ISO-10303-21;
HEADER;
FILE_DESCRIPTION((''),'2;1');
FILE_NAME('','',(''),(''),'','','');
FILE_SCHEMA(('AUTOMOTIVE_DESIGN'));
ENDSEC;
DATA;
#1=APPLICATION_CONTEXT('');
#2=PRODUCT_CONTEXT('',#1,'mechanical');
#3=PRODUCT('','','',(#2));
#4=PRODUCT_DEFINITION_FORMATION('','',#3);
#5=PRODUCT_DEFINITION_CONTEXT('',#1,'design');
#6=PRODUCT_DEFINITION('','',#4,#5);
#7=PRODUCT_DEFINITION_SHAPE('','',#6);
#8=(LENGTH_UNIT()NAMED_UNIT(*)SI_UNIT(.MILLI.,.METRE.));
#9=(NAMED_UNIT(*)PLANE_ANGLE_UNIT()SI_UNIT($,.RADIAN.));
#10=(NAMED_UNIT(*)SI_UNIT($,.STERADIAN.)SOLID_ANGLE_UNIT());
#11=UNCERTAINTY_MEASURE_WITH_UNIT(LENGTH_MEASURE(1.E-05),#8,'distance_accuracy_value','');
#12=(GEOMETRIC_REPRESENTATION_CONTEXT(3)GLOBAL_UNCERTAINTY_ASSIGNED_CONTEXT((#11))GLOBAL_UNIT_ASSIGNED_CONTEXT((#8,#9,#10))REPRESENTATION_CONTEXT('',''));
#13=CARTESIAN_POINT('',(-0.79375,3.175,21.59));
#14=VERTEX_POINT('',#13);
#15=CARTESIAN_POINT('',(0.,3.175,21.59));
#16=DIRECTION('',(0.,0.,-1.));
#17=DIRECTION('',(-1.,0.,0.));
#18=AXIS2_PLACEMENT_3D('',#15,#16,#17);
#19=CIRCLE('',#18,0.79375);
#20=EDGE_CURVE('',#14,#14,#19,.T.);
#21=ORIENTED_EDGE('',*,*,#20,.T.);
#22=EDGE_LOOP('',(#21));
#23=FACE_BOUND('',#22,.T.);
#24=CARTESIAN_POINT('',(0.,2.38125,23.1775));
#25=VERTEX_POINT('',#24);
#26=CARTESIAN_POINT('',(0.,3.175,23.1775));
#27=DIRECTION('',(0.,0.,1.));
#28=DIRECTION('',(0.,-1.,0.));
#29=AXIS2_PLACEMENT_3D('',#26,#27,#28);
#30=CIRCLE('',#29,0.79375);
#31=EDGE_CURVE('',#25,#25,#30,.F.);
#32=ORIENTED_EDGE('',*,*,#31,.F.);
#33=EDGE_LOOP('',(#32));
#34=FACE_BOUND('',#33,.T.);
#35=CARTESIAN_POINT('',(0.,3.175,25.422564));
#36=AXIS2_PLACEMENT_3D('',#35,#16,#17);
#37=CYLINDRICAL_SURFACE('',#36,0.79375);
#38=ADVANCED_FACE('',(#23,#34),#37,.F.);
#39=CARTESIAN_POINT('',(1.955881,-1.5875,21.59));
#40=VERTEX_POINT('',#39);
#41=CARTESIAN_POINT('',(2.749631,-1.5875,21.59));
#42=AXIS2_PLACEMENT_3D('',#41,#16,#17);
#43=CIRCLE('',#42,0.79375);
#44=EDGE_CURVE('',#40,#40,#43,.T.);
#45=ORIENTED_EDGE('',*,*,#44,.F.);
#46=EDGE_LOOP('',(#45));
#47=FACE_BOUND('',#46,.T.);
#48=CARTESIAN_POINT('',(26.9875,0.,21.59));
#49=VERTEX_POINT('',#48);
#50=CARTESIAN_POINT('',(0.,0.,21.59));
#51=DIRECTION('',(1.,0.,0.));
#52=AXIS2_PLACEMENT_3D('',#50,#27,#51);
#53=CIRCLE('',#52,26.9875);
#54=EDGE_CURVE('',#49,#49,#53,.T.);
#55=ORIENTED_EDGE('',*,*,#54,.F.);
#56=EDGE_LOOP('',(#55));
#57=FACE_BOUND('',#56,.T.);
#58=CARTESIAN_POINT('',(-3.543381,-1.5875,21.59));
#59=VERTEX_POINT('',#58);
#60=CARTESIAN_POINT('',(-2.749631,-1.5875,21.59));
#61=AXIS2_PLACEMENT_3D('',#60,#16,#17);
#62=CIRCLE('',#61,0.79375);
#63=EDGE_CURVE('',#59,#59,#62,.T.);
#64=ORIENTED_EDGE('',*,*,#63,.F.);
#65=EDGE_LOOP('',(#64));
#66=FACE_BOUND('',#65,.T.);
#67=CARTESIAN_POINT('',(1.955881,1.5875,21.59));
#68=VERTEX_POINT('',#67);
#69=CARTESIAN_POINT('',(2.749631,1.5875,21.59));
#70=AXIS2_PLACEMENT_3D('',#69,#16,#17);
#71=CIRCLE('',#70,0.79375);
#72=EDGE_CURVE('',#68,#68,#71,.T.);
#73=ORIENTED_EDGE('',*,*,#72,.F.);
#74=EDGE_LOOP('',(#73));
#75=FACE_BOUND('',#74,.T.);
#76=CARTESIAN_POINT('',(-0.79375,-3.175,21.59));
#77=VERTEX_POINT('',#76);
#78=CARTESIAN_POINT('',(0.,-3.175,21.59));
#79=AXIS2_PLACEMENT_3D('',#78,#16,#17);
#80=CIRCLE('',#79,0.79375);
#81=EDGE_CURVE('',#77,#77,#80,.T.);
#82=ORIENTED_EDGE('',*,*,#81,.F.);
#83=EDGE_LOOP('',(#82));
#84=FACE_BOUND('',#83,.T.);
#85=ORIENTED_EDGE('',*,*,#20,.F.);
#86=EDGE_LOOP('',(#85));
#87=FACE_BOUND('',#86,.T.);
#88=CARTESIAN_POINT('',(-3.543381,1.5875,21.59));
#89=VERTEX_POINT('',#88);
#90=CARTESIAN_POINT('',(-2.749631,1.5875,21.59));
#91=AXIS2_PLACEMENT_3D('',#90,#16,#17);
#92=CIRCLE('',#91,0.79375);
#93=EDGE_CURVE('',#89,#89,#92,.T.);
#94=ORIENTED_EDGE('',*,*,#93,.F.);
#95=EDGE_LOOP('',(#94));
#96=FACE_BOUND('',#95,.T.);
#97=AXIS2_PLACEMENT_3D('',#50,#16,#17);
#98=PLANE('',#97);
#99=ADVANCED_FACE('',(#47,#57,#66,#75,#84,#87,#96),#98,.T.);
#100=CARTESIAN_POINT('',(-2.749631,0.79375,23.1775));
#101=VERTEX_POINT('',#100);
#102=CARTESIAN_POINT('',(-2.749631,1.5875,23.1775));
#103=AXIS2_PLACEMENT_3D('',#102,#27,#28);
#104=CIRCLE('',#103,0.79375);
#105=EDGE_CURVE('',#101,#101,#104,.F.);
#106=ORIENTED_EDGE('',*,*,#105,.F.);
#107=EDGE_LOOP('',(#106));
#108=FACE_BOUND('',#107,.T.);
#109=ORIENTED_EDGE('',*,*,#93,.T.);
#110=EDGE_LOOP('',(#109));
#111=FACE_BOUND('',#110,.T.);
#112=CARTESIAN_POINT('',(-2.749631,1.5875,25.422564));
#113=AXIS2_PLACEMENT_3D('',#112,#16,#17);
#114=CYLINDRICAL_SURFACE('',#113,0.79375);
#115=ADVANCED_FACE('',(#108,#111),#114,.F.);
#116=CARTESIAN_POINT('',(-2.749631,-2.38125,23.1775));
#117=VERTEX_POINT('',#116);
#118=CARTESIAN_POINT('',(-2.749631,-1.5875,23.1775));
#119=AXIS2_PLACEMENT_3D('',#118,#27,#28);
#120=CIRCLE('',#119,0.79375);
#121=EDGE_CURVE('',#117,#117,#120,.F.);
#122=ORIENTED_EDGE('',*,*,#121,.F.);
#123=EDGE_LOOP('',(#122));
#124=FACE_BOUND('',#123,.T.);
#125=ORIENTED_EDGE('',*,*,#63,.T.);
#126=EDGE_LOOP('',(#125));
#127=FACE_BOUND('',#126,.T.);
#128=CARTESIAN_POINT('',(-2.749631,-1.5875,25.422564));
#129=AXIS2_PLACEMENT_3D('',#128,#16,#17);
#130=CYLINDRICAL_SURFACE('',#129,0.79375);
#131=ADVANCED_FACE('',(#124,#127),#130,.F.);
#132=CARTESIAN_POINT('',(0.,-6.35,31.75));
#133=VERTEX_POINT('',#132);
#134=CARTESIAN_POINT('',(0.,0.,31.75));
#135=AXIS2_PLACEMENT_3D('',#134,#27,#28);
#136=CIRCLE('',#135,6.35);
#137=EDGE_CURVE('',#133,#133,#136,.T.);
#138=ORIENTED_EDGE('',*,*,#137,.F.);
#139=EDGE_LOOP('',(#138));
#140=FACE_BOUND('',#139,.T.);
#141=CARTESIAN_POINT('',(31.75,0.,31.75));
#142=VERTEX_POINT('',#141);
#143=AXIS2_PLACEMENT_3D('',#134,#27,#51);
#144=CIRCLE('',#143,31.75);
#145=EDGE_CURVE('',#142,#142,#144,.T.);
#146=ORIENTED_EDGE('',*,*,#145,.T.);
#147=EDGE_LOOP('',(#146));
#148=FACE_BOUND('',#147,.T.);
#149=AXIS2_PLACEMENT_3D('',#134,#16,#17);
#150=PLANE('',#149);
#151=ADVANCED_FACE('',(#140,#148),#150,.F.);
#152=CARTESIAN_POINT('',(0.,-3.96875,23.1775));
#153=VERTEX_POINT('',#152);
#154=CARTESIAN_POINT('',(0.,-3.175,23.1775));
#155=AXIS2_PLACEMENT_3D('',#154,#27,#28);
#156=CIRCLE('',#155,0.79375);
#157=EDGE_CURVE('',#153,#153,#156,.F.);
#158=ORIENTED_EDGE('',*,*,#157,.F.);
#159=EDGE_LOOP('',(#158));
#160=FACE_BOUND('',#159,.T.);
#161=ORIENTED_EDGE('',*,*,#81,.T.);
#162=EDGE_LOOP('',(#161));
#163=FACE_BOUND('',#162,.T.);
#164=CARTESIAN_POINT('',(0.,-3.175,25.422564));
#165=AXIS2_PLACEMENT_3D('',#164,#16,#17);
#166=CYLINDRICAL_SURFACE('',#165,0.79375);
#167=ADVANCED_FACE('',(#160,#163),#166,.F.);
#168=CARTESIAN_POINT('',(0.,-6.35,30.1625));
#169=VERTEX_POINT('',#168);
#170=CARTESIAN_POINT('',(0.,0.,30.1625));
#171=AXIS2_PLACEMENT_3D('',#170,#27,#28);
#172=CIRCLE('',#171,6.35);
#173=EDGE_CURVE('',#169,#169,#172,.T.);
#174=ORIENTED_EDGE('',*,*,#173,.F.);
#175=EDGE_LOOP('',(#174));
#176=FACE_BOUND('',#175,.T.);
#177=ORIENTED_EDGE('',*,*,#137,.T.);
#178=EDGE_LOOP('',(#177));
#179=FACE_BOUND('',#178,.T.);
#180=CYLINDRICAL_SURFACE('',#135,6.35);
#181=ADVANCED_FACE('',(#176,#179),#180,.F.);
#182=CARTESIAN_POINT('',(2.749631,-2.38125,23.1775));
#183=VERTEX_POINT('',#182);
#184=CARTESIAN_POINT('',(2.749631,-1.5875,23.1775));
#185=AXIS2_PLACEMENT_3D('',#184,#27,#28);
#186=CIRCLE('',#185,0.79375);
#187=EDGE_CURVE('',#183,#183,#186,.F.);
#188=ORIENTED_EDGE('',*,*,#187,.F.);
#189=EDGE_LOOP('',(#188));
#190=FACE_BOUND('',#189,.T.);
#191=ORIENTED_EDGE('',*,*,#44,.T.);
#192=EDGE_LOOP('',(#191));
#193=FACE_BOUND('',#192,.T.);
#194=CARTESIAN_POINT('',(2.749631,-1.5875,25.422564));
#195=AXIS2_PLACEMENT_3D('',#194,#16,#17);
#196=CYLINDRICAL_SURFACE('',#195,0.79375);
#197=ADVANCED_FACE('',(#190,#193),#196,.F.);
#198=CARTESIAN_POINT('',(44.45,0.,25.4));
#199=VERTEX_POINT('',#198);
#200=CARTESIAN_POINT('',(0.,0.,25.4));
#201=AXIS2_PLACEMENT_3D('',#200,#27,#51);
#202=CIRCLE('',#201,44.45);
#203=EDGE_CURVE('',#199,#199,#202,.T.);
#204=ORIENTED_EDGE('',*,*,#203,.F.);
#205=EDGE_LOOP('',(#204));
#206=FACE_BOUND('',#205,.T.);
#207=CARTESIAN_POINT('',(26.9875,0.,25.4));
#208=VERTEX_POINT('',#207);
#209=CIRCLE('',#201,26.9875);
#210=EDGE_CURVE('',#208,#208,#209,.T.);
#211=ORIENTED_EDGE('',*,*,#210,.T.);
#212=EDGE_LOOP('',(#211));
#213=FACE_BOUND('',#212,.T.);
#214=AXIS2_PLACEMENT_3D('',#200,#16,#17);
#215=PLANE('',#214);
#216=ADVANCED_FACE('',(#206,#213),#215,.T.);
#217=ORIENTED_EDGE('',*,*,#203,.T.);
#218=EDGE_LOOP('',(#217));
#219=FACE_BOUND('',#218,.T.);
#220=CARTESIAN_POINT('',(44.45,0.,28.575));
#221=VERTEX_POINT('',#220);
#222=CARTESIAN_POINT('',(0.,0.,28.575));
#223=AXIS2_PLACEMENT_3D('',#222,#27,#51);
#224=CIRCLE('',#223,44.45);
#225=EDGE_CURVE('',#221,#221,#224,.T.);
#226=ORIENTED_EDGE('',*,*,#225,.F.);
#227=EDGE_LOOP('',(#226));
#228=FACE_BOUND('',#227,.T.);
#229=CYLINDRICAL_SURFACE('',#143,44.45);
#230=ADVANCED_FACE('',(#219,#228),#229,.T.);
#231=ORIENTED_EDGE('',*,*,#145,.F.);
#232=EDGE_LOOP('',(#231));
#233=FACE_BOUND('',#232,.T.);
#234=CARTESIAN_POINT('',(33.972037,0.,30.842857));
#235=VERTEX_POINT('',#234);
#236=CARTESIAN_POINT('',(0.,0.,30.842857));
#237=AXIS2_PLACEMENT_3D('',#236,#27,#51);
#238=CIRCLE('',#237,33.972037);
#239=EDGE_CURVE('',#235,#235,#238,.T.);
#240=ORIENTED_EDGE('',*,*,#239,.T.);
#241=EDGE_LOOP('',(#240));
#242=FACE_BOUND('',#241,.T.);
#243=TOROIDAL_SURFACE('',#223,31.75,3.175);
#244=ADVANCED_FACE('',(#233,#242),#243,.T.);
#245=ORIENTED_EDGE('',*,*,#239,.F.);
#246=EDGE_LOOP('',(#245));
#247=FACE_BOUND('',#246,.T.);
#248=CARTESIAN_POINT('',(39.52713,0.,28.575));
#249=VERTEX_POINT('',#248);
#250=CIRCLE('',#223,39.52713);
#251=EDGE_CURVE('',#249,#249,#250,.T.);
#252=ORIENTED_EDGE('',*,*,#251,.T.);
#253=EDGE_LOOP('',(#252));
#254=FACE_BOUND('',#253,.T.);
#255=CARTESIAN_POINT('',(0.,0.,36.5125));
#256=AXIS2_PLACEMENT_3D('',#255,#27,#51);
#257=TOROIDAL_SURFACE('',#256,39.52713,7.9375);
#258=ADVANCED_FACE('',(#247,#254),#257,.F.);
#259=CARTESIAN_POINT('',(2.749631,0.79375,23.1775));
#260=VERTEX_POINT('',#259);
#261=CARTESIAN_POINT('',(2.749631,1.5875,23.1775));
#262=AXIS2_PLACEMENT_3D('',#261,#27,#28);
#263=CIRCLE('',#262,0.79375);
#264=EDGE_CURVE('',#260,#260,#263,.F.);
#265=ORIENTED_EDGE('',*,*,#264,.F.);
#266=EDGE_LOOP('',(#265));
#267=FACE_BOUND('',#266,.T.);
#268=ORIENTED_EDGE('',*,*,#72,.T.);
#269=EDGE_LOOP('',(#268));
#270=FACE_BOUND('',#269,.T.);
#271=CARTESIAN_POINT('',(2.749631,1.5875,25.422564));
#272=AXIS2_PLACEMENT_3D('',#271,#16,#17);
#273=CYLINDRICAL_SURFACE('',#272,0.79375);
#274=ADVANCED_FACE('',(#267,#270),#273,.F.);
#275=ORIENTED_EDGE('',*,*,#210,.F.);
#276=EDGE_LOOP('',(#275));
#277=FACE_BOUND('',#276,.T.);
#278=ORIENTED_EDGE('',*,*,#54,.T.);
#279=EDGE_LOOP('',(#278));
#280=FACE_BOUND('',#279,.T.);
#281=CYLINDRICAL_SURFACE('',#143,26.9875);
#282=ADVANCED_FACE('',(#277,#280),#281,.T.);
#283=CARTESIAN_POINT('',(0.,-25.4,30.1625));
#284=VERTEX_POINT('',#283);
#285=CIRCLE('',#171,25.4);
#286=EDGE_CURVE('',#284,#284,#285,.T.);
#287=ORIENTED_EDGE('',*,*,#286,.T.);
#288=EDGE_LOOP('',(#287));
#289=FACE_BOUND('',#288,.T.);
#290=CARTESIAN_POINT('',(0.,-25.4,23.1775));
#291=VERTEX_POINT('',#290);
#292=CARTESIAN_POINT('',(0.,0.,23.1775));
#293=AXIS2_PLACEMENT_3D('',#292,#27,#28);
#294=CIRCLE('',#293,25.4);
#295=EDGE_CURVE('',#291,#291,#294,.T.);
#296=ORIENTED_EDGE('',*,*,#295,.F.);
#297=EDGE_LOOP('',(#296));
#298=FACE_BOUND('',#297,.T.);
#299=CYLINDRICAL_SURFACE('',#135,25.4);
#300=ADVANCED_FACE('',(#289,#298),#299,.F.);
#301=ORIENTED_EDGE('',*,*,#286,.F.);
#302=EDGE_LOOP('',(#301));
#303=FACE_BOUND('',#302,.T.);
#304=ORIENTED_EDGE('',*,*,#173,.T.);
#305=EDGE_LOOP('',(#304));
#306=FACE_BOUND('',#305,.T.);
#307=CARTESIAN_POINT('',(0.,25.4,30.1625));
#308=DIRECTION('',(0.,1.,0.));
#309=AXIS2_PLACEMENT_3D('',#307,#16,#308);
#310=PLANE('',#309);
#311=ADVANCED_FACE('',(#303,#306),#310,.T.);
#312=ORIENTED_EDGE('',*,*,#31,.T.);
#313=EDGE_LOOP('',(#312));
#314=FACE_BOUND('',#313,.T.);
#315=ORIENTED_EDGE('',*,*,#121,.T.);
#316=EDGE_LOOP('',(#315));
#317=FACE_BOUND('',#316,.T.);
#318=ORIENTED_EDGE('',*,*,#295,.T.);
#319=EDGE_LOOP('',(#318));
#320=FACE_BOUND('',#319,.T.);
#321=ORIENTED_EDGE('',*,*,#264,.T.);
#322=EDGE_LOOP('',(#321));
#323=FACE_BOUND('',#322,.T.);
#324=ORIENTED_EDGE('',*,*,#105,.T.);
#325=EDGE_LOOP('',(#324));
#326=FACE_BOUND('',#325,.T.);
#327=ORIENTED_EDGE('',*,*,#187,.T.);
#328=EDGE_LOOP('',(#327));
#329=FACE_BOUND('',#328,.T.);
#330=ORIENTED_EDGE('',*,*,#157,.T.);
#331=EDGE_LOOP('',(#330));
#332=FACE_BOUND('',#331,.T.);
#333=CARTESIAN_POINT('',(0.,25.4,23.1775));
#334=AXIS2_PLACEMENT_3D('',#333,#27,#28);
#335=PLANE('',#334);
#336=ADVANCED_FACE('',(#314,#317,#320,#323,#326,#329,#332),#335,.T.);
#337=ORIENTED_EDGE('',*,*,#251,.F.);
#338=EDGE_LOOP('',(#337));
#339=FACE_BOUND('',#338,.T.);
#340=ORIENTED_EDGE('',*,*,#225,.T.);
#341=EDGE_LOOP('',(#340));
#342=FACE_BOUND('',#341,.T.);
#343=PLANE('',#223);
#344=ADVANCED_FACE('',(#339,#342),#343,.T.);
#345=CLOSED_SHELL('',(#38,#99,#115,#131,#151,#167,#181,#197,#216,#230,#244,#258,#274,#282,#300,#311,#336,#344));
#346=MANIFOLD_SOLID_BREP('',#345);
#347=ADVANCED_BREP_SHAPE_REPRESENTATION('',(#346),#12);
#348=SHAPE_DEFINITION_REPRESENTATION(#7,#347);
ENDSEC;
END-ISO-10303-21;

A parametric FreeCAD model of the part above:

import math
import FreeCAD as App
import Part
import Sketcher
Q = App.Units.Quantity

doc = App.newDocument("Part")
params = doc.addObject("Spreadsheet::Sheet", "Params")
for row, (alias, value) in enumerate([
    ("sketch1_height", "0.4 in"),
    ("sketch1_radius", "0.3125 in"),
    ("sketch1_radius2", "0.125 in"),
    ("sketch1_width", "1.25 in"),
    ("sketch1_height2", "0.15 in"),
    ("revolution_angle", "360 deg"),
    ("sketch2_width", "1 in"),
    ("sketch2_width2", "0.75 in"),
    ("sketch2_height", "0.275 in"),
    ("sketch2_height2", "0.0625 in"),
    ("groove_angle", "360 deg"),
    ("sketch3_diameter", "0.0625 in"),
    ("pocket1_length", "0.0625 in"),
], start=1):
    params.set(f"A{row}", alias)
    params.set(f"B{row}", "=" + value)
    params.setAlias(f"B{row}", alias)

body = doc.addObject("PartDesign::Body", "Body")

# Sketch on YZ plane
sketch1 = doc.addObject("Sketcher::SketchObject", "Sketch")
body.addObject(sketch1)
sketch1.AttachmentSupport = (doc.YZ_Plane, [""])
sketch1.MapMode = "FlatFace"
sketch1.addGeometry(Part.LineSegment(App.Vector(0, 21.6, 0), App.Vector(27, 21.6, 0)), False)
sketch1.addGeometry(Part.LineSegment(App.Vector(27, 21.6, 0), App.Vector(27, 25.4, 0)), False)
sketch1.addGeometry(Part.LineSegment(App.Vector(27, 25.4, 0), App.Vector(44.5, 25.4, 0)), False)
sketch1.addGeometry(Part.LineSegment(App.Vector(44.5, 25.4, 0), App.Vector(44.5, 28.6, 0)), False)
sketch1.addGeometry(Part.LineSegment(App.Vector(44.5, 28.6, 0), App.Vector(39.5, 28.6, 0)), False)
sketch1.addGeometry(Part.ArcOfCircle(Part.Circle(App.Vector(39.5, 36.5, 0), App.Vector(0, 0, 1), 7.9), math.radians(-134), math.radians(-90)), False)
sketch1.addGeometry(Part.ArcOfCircle(Part.Circle(App.Vector(31.8, 28.6, 0), App.Vector(0, 0, 1), 3.2), math.radians(46), math.radians(90)), False)
sketch1.addGeometry(Part.LineSegment(App.Vector(31.8, 31.8, 0), App.Vector(0, 31.8, 0)), False)
sketch1.addGeometry(Part.LineSegment(App.Vector(0, 31.8, 0), App.Vector(0, 21.6, 0)), False)
sketch1.addConstraint(Sketcher.Constraint("Coincident", 0, 2, 1, 1))
sketch1.addConstraint(Sketcher.Constraint("Coincident", 1, 2, 2, 1))
sketch1.addConstraint(Sketcher.Constraint("Coincident", 2, 2, 3, 1))
sketch1.addConstraint(Sketcher.Constraint("Coincident", 3, 2, 4, 1))
sketch1.addConstraint(Sketcher.Constraint("Tangent", 4, 2, 5, 2))
sketch1.addConstraint(Sketcher.Constraint("Tangent", 5, 1, 6, 1))
sketch1.addConstraint(Sketcher.Constraint("Tangent", 6, 2, 7, 1))
sketch1.addConstraint(Sketcher.Constraint("Coincident", 7, 2, 8, 1))
sketch1.addConstraint(Sketcher.Constraint("Coincident", 8, 2, 0, 1))
sketch1.addConstraint(Sketcher.Constraint("Horizontal", 0))
sketch1.addConstraint(Sketcher.Constraint("Vertical", 1))
sketch1.addConstraint(Sketcher.Constraint("Horizontal", 2))
sketch1.addConstraint(Sketcher.Constraint("Vertical", 3))
sketch1.addConstraint(Sketcher.Constraint("Horizontal", 4))
sketch1.addConstraint(Sketcher.Constraint("Horizontal", 7))
sketch1.addConstraint(Sketcher.Constraint("Vertical", 8))
sketch1.addConstraint(Sketcher.Constraint("PointOnObject", 7, 2, -2))
sketch1.addConstraint(Sketcher.Constraint("Horizontal", 6, 3, 3, 2))
sketch1.addConstraint(Sketcher.Constraint("DistanceY", 8, 2, 8, 1, Q("0.4 in")))
sketch1.addConstraint(Sketcher.Constraint("DistanceY", -1, 1, 1, 2, Q("1 in")))
sketch1.addConstraint(Sketcher.Constraint("Radius", 5, Q("0.3125 in")))
sketch1.addConstraint(Sketcher.Constraint("Radius", 6, Q("0.125 in")))
sketch1.addConstraint(Sketcher.Constraint("DistanceX", 7, 2, 7, 1, Q("1.25 in")))
sketch1.addConstraint(Sketcher.Constraint("DistanceY", 1, 1, 1, 2, Q("0.15 in")))
sketch1.addConstraint(Sketcher.Constraint("DistanceX", 6, 3, 2, 2, Q("0.5 in")))
sketch1.addConstraint(Sketcher.Constraint("DistanceX", 0, 1, 0, 2, Q("1.0625 in")))
sketch1.setExpression("Constraints[18]", "Params.sketch1_height")
sketch1.setExpression("Constraints[20]", "Params.sketch1_radius")
sketch1.setExpression("Constraints[21]", "Params.sketch1_radius2")
sketch1.setExpression("Constraints[22]", "Params.sketch1_width")
sketch1.setExpression("Constraints[23]", "Params.sketch1_height2")
revolution = doc.addObject("PartDesign::Revolution", "Revolution")
body.addObject(revolution)
revolution.Profile = sketch1
revolution.ReferenceAxis = (sketch1, ["V_Axis"])
revolution.setExpression("Angle", "Params.revolution_angle")

# Sketch on YZ plane
sketch2 = doc.addObject("Sketcher::SketchObject", "Sketch001")
body.addObject(sketch2)
sketch2.AttachmentSupport = (doc.YZ_Plane, [""])
sketch2.MapMode = "FlatFace"
sketch2.addGeometry(Part.LineSegment(App.Vector(25.4, 23.2, 0), App.Vector(25.4, 30.2, 0)), False)
sketch2.addGeometry(Part.LineSegment(App.Vector(25.4, 30.2, 0), App.Vector(6.3, 30.2, 0)), False)
sketch2.addGeometry(Part.LineSegment(App.Vector(6.3, 30.2, 0), App.Vector(6.3, 31.8, 0)), False)
sketch2.addGeometry(Part.LineSegment(App.Vector(6.3, 31.8, 0), App.Vector(0, 31.8, 0)), False)
sketch2.addGeometry(Part.LineSegment(App.Vector(0, 31.8, 0), App.Vector(0, 23.2, 0)), False)
sketch2.addGeometry(Part.LineSegment(App.Vector(0, 23.2, 0), App.Vector(25.4, 23.2, 0)), False)
sketch2.addConstraint(Sketcher.Constraint("Coincident", 0, 2, 1, 1))
sketch2.addConstraint(Sketcher.Constraint("Coincident", 1, 2, 2, 1))
sketch2.addConstraint(Sketcher.Constraint("Coincident", 2, 2, 3, 1))
sketch2.addConstraint(Sketcher.Constraint("Coincident", 3, 2, 4, 1))
sketch2.addConstraint(Sketcher.Constraint("Coincident", 4, 2, 5, 1))
sketch2.addConstraint(Sketcher.Constraint("Coincident", 5, 2, 0, 1))
sketch2.addConstraint(Sketcher.Constraint("Vertical", 0))
sketch2.addConstraint(Sketcher.Constraint("Horizontal", 1))
sketch2.addConstraint(Sketcher.Constraint("Vertical", 2))
sketch2.addConstraint(Sketcher.Constraint("Horizontal", 3))
sketch2.addConstraint(Sketcher.Constraint("Vertical", 4))
sketch2.addConstraint(Sketcher.Constraint("Horizontal", 5))
sketch2.addConstraint(Sketcher.Constraint("PointOnObject", 3, 2, -2))
sketch2.addConstraint(Sketcher.Constraint("DistanceX", 5, 1, 5, 2, Q("1 in")))
sketch2.addConstraint(Sketcher.Constraint("DistanceX", 1, 2, 1, 1, Q("0.75 in")))
sketch2.addConstraint(Sketcher.Constraint("DistanceY", 0, 1, 0, 2, Q("0.275 in")))
sketch2.addConstraint(Sketcher.Constraint("DistanceY", 2, 1, 2, 2, Q("0.0625 in")))
sketch2.addConstraint(Sketcher.Constraint("DistanceY", -1, 1, 2, 2, Q("1.25 in")))
sketch2.setExpression("Constraints[13]", "Params.sketch2_width")
sketch2.setExpression("Constraints[14]", "Params.sketch2_width2")
sketch2.setExpression("Constraints[15]", "Params.sketch2_height")
sketch2.setExpression("Constraints[16]", "Params.sketch2_height2")
groove = doc.addObject("PartDesign::Groove", "Groove")
body.addObject(groove)
groove.Profile = sketch2
groove.ReferenceAxis = (sketch2, ["V_Axis"])
groove.setExpression("Angle", "Params.groove_angle")

# Sketch on XY plane
sketch3 = doc.addObject("Sketcher::SketchObject", "Sketch002")
body.addObject(sketch3)
sketch3.AttachmentSupport = (doc.XY_Plane, [""])
sketch3.MapMode = "FlatFace"
sketch3.AttachmentOffset = App.Placement(App.Vector(0, 0, 0.85 * 25.4), App.Rotation())
sketch3.addGeometry(Part.Circle(App.Vector(0, 3.2, 0), App.Vector(0, 0, 1), 0.8), False)
sketch3.addGeometry(Part.Circle(App.Vector(-2.7, 1.6, 0), App.Vector(0, 0, 1), 0.8), False)
sketch3.addGeometry(Part.Circle(App.Vector(-2.7, -1.6, 0), App.Vector(0, 0, 1), 0.8), False)
sketch3.addGeometry(Part.Circle(App.Vector(0, -3.2, 0), App.Vector(0, 0, 1), 0.8), False)
sketch3.addGeometry(Part.Circle(App.Vector(2.7, -1.6, 0), App.Vector(0, 0, 1), 0.8), False)
sketch3.addGeometry(Part.Circle(App.Vector(2.7, 1.6, 0), App.Vector(0, 0, 1), 0.8), False)
sketch3.addConstraint(Sketcher.Constraint("Equal", 0, 1))
sketch3.addConstraint(Sketcher.Constraint("Equal", 1, 2))
sketch3.addConstraint(Sketcher.Constraint("Equal", 2, 3))
sketch3.addConstraint(Sketcher.Constraint("Equal", 3, 4))
sketch3.addConstraint(Sketcher.Constraint("Equal", 4, 5))
sketch3.addConstraint(Sketcher.Constraint("Symmetric", 0, 3, 3, 3, -1, 1))
sketch3.addConstraint(Sketcher.Constraint("Symmetric", 1, 3, 4, 3, -1, 1))
sketch3.addConstraint(Sketcher.Constraint("Symmetric", 2, 3, 5, 3, -1, 1))
sketch3.addConstraint(Sketcher.Constraint("Symmetric", 2, 3, 4, 3, -2))
sketch3.addConstraint(Sketcher.Constraint("PointOnObject", 0, 3, -2))
sketch3.addConstraint(Sketcher.Constraint("Diameter", 0, Q("0.0625 in")))
sketch3.addConstraint(Sketcher.Constraint("DistanceY", 3, 3, 0, 3, Q("0.25 in")))
sketch3.addConstraint(Sketcher.Constraint("DistanceY", -1, 1, 1, 3, Q("0.0625 in")))
sketch3.addConstraint(Sketcher.Constraint("DistanceX", 1, 3, -1, 1, Q("2.749631 mm")))
sketch3.setExpression("Constraints[10]", "Params.sketch3_diameter")
pocket1 = doc.addObject("PartDesign::Pocket", "Pocket")
body.addObject(pocket1)
pocket1.Profile = sketch3
pocket1.setExpression("Length", "Params.pocket1_length")
pocket1.Reversed = True

doc.recompute()
